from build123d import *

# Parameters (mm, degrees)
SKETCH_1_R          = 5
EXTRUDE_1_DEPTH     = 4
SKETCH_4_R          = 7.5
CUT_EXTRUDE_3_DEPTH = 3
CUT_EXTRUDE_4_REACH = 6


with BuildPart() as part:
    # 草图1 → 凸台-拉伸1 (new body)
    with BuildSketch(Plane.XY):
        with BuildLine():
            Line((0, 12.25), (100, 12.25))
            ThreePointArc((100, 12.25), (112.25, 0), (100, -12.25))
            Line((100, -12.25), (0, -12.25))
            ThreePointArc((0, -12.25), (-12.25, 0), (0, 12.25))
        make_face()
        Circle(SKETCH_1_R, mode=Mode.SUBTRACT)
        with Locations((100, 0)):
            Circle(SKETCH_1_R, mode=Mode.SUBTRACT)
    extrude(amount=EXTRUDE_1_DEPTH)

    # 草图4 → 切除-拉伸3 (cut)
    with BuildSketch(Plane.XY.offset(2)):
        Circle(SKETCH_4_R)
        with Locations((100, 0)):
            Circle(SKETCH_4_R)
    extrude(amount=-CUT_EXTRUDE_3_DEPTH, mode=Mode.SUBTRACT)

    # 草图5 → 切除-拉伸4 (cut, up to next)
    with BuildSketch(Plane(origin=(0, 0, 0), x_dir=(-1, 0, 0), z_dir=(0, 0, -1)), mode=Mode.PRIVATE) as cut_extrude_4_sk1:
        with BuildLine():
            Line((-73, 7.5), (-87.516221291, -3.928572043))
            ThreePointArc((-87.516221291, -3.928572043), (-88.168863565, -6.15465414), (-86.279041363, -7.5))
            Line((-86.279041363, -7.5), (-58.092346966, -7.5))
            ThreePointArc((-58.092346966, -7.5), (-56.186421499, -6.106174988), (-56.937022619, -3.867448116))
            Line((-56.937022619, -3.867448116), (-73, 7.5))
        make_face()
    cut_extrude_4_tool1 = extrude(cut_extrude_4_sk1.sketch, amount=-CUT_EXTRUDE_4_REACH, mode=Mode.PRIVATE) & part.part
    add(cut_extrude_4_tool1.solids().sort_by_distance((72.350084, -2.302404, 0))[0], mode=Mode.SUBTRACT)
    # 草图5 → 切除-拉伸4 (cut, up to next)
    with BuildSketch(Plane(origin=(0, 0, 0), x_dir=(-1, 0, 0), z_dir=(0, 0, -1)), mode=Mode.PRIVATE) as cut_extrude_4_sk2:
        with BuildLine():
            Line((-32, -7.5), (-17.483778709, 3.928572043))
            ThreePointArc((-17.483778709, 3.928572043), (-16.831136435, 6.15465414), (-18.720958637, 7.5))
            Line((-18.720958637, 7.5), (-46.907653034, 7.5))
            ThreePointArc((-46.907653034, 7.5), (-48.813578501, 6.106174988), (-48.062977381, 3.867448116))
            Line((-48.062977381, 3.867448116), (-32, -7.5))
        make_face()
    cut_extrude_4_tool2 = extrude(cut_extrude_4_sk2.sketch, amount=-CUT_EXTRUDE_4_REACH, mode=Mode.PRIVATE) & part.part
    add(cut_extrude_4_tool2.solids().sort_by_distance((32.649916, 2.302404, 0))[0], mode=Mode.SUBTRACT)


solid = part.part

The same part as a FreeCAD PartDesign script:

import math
import FreeCAD as App
import Part
import Sketcher

doc = App.newDocument("Part")
body = doc.addObject("PartDesign::Body", "Body")

sketch1 = body.newObject("Sketcher::SketchObject", "Sketch")
sketch1.AttachmentSupport = (doc.getObject("XY_Plane"), [""])
sketch1.MapMode = "FlatFace"
sketch1.addGeometry(Part.LineSegment(App.Vector(100, 12, 0), App.Vector(0, 12, 0)), False)
sketch1.addGeometry(Part.ArcOfCircle(Part.Circle(App.Vector(0, 0, 0), App.Vector(0, 0, 1), 12), math.radians(90), math.radians(270)), False)
sketch1.addGeometry(Part.LineSegment(App.Vector(0, -12, 0), App.Vector(100, -12, 0)), False)
sketch1.addGeometry(Part.ArcOfCircle(Part.Circle(App.Vector(100, 0, 0), App.Vector(0, 0, 1), 12), math.radians(-90), math.radians(90)), False)
sketch1.addGeometry(Part.Circle(App.Vector(100, 0, 0), App.Vector(0, 0, 1), 5), False)
sketch1.addGeometry(Part.Circle(App.Vector(0, 0, 0), App.Vector(0, 0, 1), 5), False)
sketch1.addConstraint(Sketcher.Constraint("Tangent", 0, 2, 1, 1))
sketch1.addConstraint(Sketcher.Constraint("Tangent", 1, 2, 2, 1))
sketch1.addConstraint(Sketcher.Constraint("Tangent", 2, 2, 3, 1))
sketch1.addConstraint(Sketcher.Constraint("Tangent", 3, 2, 0, 1))
sketch1.addConstraint(Sketcher.Constraint("Horizontal", 0))
sketch1.addConstraint(Sketcher.Constraint("Horizontal", 2))
sketch1.addConstraint(Sketcher.Constraint("Coincident", 1, 3, -1, 1))
sketch1.addConstraint(Sketcher.Constraint("Coincident", 5, 3, -1, 1))
sketch1.addConstraint(Sketcher.Constraint("Coincident", 4, 3, 3, 3))
sketch1.addConstraint(Sketcher.Constraint("Equal", 4, 5))
sketch1.addConstraint(Sketcher.Constraint("Diameter", 4, 10.0))
sketch1.addConstraint(Sketcher.Constraint("DistanceX", 0, 2, 0, 1, 100.0))
sketch1.addConstraint(Sketcher.Constraint("Radius", 1, 12.25))
pad1 = body.newObject("PartDesign::Pad", "Pad")
pad1.Profile = sketch1
pad1.Length = 4

sketch2 = body.newObject("Sketcher::SketchObject", "Sketch001")
sketch2.AttachmentSupport = (doc.getObject("XY_Plane"), [""])
sketch2.MapMode = "FlatFace"
sketch2.AttachmentOffset = App.Placement(App.Vector(0, 0, 2), App.Rotation())
sketch2.addGeometry(Part.Circle(App.Vector(0, 0, 0), App.Vector(0, 0, 1), 8), False)
sketch2.addGeometry(Part.Circle(App.Vector(100, 0, 0), App.Vector(0, 0, 1), 8), False)
sketch2.addConstraint(Sketcher.Constraint("Coincident", 0, 3, -1, 1))
sketch2.addConstraint(Sketcher.Constraint("Equal", 0, 1))
sketch2.addConstraint(Sketcher.Constraint("PointOnObject", 1, 3, -1))
sketch2.addConstraint(Sketcher.Constraint("Diameter", 0, 15.0))
sketch2.addConstraint(Sketcher.Constraint("DistanceX", -1, 1, 1, 3, 100.0))
pocket1 = body.newObject("PartDesign::Pocket", "Pocket")
pocket1.Profile = sketch2
pocket1.Length = 3

sketch3 = body.newObject("Sketcher::SketchObject", "Sketch002")
sketch3.AttachmentSupport = (doc.getObject("XY_Plane"), [""])
sketch3.MapMode = "FlatFace"
sketch3.addGeometry(Part.LineSegment(App.Vector(73, 7.5, 0), App.Vector(87.5, -3.9, 0)), False)
sketch3.addGeometry(Part.ArcOfCircle(Part.Circle(App.Vector(86.3, -5.5, 0), App.Vector(0, 0, 1), 2), math.radians(-90), math.radians(52)), False)
sketch3.addGeometry(Part.LineSegment(App.Vector(86.3, -7.5, 0), App.Vector(58.1, -7.5, 0)), False)
sketch3.addGeometry(Part.ArcOfCircle(Part.Circle(App.Vector(58.1, -5.5, 0), App.Vector(0, 0, 1), 2), math.radians(125), math.radians(270)), False)
sketch3.addGeometry(Part.LineSegment(App.Vector(56.9, -3.9, 0), App.Vector(73, 7.5, 0)), False)
sketch3.addConstraint(Sketcher.Constraint("Tangent", 0, 2, 1, 2))
sketch3.addConstraint(Sketcher.Constraint("Tangent", 1, 1, 2, 1))
sketch3.addConstraint(Sketcher.Constraint("Tangent", 2, 2, 3, 2))
sketch3.addConstraint(Sketcher.Constraint("Tangent", 3, 1, 4, 1))
sketch3.addConstraint(Sketcher.Constraint("Coincident", 4, 2, 0, 1))
sketch3.addConstraint(Sketcher.Constraint("Horizontal", 2))
sketch3.addConstraint(Sketcher.Constraint("Equal", 1, 3))
sketch3.addConstraint(Sketcher.Constraint("Radius", 1, 2.0))
sketch3.addConstraint(Sketcher.Constraint("DistanceX", -1, 1, 4, 2, 73.0))
sketch3.addConstraint(Sketcher.Constraint("DistanceY", 1, 3, 4, 2, 13.0))
sketch3.addConstraint(Sketcher.Constraint("DistanceY", 1, 3, -1, 1, 5.5))
sketch3.addConstraint(Sketcher.Constraint("DistanceX", 3, 1, 0, 2, 30.579199))
sketch3.addConstraint(Sketcher.Constraint("DistanceX", -1, 1, 1, 3, 86.279041))
pocket2 = body.newObject("PartDesign::Pocket", "Pocket001")
pocket2.Profile = sketch3
pocket2.Type = "UpToFirst"
pocket2.Reversed = True

sketch4 = body.newObject("Sketcher::SketchObject", "Sketch003")
sketch4.AttachmentSupport = (doc.getObject("XY_Plane"), [""])
sketch4.MapMode = "FlatFace"
sketch4.addGeometry(Part.LineSegment(App.Vector(32, -7.5, 0), App.Vector(17.5, 3.9, 0)), False)
sketch4.addGeometry(Part.ArcOfCircle(Part.Circle(App.Vector(18.7, 5.5, 0), App.Vector(0, 0, 1), 2), math.radians(90), math.radians(232)), False)
sketch4.addGeometry(Part.LineSegment(App.Vector(18.7, 7.5, 0), App.Vector(46.9, 7.5, 0)), False)
sketch4.addGeometry(Part.ArcOfCircle(Part.Circle(App.Vector(46.9, 5.5, 0), App.Vector(0, 0, 1), 2), math.radians(-55), math.radians(90)), False)
sketch4.addGeometry(Part.LineSegment(App.Vector(48.1, 3.9, 0), App.Vector(32, -7.5, 0)), False)
sketch4.addConstraint(Sketcher.Constraint("Tangent", 0, 2, 1, 2))
sketch4.addConstraint(Sketcher.Constraint("Tangent", 1, 1, 2, 1))
sketch4.addConstraint(Sketcher.Constraint("Tangent", 2, 2, 3, 2))
sketch4.addConstraint(Sketcher.Constraint("Tangent", 3, 1, 4, 1))
sketch4.addConstraint(Sketcher.Constraint("Coincident", 4, 2, 0, 1))
sketch4.addConstraint(Sketcher.Constraint("Horizontal", 2))
sketch4.addConstraint(Sketcher.Constraint("Equal", 1, 3))
sketch4.addConstraint(Sketcher.Constraint("Radius", 1, 2.0))
sketch4.addConstraint(Sketcher.Constraint("DistanceX", -1, 1, 4, 2, 32.0))
sketch4.addConstraint(Sketcher.Constraint("DistanceY", 4, 2, 1, 3, 13.0))
sketch4.addConstraint(Sketcher.Constraint("DistanceY", -1, 1, 1, 3, 5.5))
sketch4.addConstraint(Sketcher.Constraint("DistanceX", 0, 2, 3, 1, 30.579199))
sketch4.addConstraint(Sketcher.Constraint("DistanceX", -1, 1, 1, 3, 18.720959))
pocket3 = body.newObject("PartDesign::Pocket", "Pocket002")
pocket3.Profile = sketch4
pocket3.Type = "UpToFirst"
pocket3.Reversed = True

doc.recompute()
